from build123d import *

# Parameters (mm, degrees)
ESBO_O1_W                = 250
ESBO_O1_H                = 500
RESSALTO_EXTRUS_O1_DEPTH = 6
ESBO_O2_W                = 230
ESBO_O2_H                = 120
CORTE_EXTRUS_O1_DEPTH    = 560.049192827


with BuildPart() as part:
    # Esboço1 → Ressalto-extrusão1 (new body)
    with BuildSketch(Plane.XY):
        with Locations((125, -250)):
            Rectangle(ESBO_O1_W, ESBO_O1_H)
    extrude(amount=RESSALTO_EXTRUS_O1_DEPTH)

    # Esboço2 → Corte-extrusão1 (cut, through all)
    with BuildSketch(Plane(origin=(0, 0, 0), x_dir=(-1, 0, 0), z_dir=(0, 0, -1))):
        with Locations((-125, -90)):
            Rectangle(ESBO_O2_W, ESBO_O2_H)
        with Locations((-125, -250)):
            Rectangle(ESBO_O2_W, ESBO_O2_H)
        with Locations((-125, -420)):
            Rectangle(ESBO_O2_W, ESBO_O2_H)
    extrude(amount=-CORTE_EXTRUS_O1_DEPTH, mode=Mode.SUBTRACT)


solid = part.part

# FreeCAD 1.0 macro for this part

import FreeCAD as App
import Part
import Sketcher
from FreeCAD import Vector


def add_polygon(sketch, points):
    """Adds a closed chain of lines whose ends are joined by coincident constraints."""
    first, n = sketch.GeometryCount, len(points)
    for a, b in zip(points, points[1:] + points[:1]):
        sketch.addGeometry(Part.LineSegment(App.Vector(*a, 0), App.Vector(*b, 0)), False)
    for i in range(n):
        sketch.addConstraint(Sketcher.Constraint("Coincident", first + i, 2, first + (i + 1) % n, 1))

doc = App.newDocument("Part")
body = doc.addObject("PartDesign::Body", "Body")

sketch1 = body.newObject("Sketcher::SketchObject", "Sketch")
sketch1.AttachmentSupport = (doc.getObject("XY_Plane"), [""])
sketch1.MapMode = "FlatFace"
add_polygon(sketch1, [(0, 0), (0, -500), (250, -500), (250, 0)])
sketch1.addConstraint(Sketcher.Constraint("Vertical", 0))
sketch1.addConstraint(Sketcher.Constraint("Horizontal", 1))
sketch1.addConstraint(Sketcher.Constraint("Vertical", 2))
sketch1.addConstraint(Sketcher.Constraint("Horizontal", 3))
sketch1.addConstraint(Sketcher.Constraint("Coincident", 3, 2, -1, 1))
sketch1.addConstraint(Sketcher.Constraint("DistanceX", 1, 1, 1, 2, 250.0))
sketch1.addConstraint(Sketcher.Constraint("DistanceY", 0, 2, 0, 1, 500.0))
pad1 = body.newObject("PartDesign::Pad", "Pad")
pad1.Profile = sketch1
pad1.Length = 6

sketch2 = body.newObject("Sketcher::SketchObject", "Sketch001")
sketch2.AttachmentSupport = (doc.getObject("XY_Plane"), [""])
sketch2.MapMode = "FlatFace"
add_polygon(sketch2, [(240, -30), (240, -150), (10, -150), (10, -30)])
add_polygon(sketch2, [(240, -190), (240, -310), (10, -310), (10, -190)])
add_polygon(sketch2, [(240, -360), (240, -480), (10, -480), (10, -360)])
sketch2.addConstraint(Sketcher.Constraint("Vertical", 0))
sketch2.addConstraint(Sketcher.Constraint("Horizontal", 1))
sketch2.addConstraint(Sketcher.Constraint("Vertical", 2))
sketch2.addConstraint(Sketcher.Constraint("Horizontal", 3))
sketch2.addConstraint(Sketcher.Constraint("Vertical", 4))
sketch2.addConstraint(Sketcher.Constraint("Horizontal", 5))
sketch2.addConstraint(Sketcher.Constraint("Vertical", 6))
sketch2.addConstraint(Sketcher.Constraint("Horizontal", 7))
sketch2.addConstraint(Sketcher.Constraint("Vertical", 8))
sketch2.addConstraint(Sketcher.Constraint("Horizontal", 9))
sketch2.addConstraint(Sketcher.Constraint("Vertical", 10))
sketch2.addConstraint(Sketcher.Constraint("Horizontal", 11))
sketch2.addConstraint(Sketcher.Constraint("Vertical", 3, 2, 4, 2))
sketch2.addConstraint(Sketcher.Constraint("Vertical", 2, 2, 5, 2))
sketch2.addConstraint(Sketcher.Constraint("Vertical", 7, 2, 8, 2))
sketch2.addConstraint(Sketcher.Constraint("Vertical", 6, 2, 9, 2))
sketch2.addConstraint(Sketcher.Constraint("Equal", 2, 4))
sketch2.addConstraint(Sketcher.Constraint("Equal", 6, 8))
sketch2.addConstraint(Sketcher.Constraint("DistanceX", 1, 2, 1, 1, 230.0))
sketch2.addConstraint(Sketcher.Constraint("DistanceY", 0, 2, 0, 1, 120.0))
sketch2.addConstraint(Sketcher.Constraint("DistanceX", -1, 1, 0, 2, 240.0))
sketch2.addConstraint(Sketcher.Constraint("DistanceY", 0, 2, -1, 1, 150.0))
sketch2.addConstraint(Sketcher.Constraint("DistanceY", 4, 2, -1, 1, 310.0))
sketch2.addConstraint(Sketcher.Constraint("DistanceY", 8, 2, -1, 1, 480.0))
pocket1 = body.newObject("PartDesign::Pocket", "Pocket")
pocket1.Profile = sketch2
pocket1.Type = "ThroughAll"
pocket1.Reversed = True

doc.recompute()
